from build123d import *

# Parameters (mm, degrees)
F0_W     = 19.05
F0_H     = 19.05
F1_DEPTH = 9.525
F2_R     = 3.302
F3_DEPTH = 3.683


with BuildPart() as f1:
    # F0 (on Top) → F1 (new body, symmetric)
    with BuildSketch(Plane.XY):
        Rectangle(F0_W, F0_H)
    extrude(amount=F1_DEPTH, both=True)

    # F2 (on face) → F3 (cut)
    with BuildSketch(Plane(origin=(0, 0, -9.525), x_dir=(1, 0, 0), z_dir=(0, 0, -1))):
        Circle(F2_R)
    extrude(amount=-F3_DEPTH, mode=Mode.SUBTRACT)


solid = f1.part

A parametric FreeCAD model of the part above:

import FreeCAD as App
import Part
import Sketcher
from FreeCAD import Vector
Q = App.Units.Quantity

doc = App.newDocument("Part")
body = doc.addObject("PartDesign::Body", "Body")

# Sketch on XY plane
sketch1 = doc.addObject("Sketcher::SketchObject", "Sketch")
body.addObject(sketch1)
sketch1.AttachmentSupport = (doc.XY_Plane, [""])
sketch1.MapMode = "FlatFace"
sketch1.addGeometry([
    Part.LineSegment(Vector(-10, 10, 0), Vector(-10, -10, 0)),
    Part.LineSegment(Vector(-10, -10, 0), Vector(10, -10, 0)),
    Part.LineSegment(Vector(10, -10, 0), Vector(10, 10, 0)),
    Part.LineSegment(Vector(10, 10, 0), Vector(-10, 10, 0)),
], False)
sketch1.addConstraint([
    Sketcher.Constraint("Coincident", 0, 2, 1, 1),
    Sketcher.Constraint("Coincident", 1, 2, 2, 1),
    Sketcher.Constraint("Coincident", 2, 2, 3, 1),
    Sketcher.Constraint("Coincident", 3, 2, 0, 1),
    Sketcher.Constraint("Vertical", 0),
    Sketcher.Constraint("Horizontal", 1),
    Sketcher.Constraint("Vertical", 2),
    Sketcher.Constraint("Horizontal", 3),
    Sketcher.Constraint("Symmetric", 0, 2, 2, 2, -1, 1),
    Sketcher.Constraint("Equal", 3, 0),
    Sketcher.Constraint("DistanceX", 1, 1, 1, 2, Q("0.75 in")),
])
pad1 = doc.addObject("PartDesign::Pad", "Pad")
body.addObject(pad1)
pad1.Profile = sketch1
pad1.Length = Q("0.75 in")
pad1.Midplane = True

# Sketch on XY plane
sketch2 = doc.addObject("Sketcher::SketchObject", "Sketch001")
body.addObject(sketch2)
sketch2.AttachmentSupport = (doc.XY_Plane, [""])
sketch2.MapMode = "FlatFace"
sketch2.AttachmentOffset = App.Placement(Vector(0, 0, -0.375 * 25.4), App.Rotation())
sketch2.addGeometry(Part.Circle(Vector(0, 0, 0), Vector(0, 0, 1), 3.3), False)
sketch2.addConstraint([
    Sketcher.Constraint("Coincident", 0, 3, -1, 1),
    Sketcher.Constraint("Diameter", 0, Q("0.26 in")),
])
pocket1 = doc.addObject("PartDesign::Pocket", "Pocket")
body.addObject(pocket1)
pocket1.Profile = sketch2
pocket1.Length = Q("0.145 in")
pocket1.Reversed = True

doc.recompute()
